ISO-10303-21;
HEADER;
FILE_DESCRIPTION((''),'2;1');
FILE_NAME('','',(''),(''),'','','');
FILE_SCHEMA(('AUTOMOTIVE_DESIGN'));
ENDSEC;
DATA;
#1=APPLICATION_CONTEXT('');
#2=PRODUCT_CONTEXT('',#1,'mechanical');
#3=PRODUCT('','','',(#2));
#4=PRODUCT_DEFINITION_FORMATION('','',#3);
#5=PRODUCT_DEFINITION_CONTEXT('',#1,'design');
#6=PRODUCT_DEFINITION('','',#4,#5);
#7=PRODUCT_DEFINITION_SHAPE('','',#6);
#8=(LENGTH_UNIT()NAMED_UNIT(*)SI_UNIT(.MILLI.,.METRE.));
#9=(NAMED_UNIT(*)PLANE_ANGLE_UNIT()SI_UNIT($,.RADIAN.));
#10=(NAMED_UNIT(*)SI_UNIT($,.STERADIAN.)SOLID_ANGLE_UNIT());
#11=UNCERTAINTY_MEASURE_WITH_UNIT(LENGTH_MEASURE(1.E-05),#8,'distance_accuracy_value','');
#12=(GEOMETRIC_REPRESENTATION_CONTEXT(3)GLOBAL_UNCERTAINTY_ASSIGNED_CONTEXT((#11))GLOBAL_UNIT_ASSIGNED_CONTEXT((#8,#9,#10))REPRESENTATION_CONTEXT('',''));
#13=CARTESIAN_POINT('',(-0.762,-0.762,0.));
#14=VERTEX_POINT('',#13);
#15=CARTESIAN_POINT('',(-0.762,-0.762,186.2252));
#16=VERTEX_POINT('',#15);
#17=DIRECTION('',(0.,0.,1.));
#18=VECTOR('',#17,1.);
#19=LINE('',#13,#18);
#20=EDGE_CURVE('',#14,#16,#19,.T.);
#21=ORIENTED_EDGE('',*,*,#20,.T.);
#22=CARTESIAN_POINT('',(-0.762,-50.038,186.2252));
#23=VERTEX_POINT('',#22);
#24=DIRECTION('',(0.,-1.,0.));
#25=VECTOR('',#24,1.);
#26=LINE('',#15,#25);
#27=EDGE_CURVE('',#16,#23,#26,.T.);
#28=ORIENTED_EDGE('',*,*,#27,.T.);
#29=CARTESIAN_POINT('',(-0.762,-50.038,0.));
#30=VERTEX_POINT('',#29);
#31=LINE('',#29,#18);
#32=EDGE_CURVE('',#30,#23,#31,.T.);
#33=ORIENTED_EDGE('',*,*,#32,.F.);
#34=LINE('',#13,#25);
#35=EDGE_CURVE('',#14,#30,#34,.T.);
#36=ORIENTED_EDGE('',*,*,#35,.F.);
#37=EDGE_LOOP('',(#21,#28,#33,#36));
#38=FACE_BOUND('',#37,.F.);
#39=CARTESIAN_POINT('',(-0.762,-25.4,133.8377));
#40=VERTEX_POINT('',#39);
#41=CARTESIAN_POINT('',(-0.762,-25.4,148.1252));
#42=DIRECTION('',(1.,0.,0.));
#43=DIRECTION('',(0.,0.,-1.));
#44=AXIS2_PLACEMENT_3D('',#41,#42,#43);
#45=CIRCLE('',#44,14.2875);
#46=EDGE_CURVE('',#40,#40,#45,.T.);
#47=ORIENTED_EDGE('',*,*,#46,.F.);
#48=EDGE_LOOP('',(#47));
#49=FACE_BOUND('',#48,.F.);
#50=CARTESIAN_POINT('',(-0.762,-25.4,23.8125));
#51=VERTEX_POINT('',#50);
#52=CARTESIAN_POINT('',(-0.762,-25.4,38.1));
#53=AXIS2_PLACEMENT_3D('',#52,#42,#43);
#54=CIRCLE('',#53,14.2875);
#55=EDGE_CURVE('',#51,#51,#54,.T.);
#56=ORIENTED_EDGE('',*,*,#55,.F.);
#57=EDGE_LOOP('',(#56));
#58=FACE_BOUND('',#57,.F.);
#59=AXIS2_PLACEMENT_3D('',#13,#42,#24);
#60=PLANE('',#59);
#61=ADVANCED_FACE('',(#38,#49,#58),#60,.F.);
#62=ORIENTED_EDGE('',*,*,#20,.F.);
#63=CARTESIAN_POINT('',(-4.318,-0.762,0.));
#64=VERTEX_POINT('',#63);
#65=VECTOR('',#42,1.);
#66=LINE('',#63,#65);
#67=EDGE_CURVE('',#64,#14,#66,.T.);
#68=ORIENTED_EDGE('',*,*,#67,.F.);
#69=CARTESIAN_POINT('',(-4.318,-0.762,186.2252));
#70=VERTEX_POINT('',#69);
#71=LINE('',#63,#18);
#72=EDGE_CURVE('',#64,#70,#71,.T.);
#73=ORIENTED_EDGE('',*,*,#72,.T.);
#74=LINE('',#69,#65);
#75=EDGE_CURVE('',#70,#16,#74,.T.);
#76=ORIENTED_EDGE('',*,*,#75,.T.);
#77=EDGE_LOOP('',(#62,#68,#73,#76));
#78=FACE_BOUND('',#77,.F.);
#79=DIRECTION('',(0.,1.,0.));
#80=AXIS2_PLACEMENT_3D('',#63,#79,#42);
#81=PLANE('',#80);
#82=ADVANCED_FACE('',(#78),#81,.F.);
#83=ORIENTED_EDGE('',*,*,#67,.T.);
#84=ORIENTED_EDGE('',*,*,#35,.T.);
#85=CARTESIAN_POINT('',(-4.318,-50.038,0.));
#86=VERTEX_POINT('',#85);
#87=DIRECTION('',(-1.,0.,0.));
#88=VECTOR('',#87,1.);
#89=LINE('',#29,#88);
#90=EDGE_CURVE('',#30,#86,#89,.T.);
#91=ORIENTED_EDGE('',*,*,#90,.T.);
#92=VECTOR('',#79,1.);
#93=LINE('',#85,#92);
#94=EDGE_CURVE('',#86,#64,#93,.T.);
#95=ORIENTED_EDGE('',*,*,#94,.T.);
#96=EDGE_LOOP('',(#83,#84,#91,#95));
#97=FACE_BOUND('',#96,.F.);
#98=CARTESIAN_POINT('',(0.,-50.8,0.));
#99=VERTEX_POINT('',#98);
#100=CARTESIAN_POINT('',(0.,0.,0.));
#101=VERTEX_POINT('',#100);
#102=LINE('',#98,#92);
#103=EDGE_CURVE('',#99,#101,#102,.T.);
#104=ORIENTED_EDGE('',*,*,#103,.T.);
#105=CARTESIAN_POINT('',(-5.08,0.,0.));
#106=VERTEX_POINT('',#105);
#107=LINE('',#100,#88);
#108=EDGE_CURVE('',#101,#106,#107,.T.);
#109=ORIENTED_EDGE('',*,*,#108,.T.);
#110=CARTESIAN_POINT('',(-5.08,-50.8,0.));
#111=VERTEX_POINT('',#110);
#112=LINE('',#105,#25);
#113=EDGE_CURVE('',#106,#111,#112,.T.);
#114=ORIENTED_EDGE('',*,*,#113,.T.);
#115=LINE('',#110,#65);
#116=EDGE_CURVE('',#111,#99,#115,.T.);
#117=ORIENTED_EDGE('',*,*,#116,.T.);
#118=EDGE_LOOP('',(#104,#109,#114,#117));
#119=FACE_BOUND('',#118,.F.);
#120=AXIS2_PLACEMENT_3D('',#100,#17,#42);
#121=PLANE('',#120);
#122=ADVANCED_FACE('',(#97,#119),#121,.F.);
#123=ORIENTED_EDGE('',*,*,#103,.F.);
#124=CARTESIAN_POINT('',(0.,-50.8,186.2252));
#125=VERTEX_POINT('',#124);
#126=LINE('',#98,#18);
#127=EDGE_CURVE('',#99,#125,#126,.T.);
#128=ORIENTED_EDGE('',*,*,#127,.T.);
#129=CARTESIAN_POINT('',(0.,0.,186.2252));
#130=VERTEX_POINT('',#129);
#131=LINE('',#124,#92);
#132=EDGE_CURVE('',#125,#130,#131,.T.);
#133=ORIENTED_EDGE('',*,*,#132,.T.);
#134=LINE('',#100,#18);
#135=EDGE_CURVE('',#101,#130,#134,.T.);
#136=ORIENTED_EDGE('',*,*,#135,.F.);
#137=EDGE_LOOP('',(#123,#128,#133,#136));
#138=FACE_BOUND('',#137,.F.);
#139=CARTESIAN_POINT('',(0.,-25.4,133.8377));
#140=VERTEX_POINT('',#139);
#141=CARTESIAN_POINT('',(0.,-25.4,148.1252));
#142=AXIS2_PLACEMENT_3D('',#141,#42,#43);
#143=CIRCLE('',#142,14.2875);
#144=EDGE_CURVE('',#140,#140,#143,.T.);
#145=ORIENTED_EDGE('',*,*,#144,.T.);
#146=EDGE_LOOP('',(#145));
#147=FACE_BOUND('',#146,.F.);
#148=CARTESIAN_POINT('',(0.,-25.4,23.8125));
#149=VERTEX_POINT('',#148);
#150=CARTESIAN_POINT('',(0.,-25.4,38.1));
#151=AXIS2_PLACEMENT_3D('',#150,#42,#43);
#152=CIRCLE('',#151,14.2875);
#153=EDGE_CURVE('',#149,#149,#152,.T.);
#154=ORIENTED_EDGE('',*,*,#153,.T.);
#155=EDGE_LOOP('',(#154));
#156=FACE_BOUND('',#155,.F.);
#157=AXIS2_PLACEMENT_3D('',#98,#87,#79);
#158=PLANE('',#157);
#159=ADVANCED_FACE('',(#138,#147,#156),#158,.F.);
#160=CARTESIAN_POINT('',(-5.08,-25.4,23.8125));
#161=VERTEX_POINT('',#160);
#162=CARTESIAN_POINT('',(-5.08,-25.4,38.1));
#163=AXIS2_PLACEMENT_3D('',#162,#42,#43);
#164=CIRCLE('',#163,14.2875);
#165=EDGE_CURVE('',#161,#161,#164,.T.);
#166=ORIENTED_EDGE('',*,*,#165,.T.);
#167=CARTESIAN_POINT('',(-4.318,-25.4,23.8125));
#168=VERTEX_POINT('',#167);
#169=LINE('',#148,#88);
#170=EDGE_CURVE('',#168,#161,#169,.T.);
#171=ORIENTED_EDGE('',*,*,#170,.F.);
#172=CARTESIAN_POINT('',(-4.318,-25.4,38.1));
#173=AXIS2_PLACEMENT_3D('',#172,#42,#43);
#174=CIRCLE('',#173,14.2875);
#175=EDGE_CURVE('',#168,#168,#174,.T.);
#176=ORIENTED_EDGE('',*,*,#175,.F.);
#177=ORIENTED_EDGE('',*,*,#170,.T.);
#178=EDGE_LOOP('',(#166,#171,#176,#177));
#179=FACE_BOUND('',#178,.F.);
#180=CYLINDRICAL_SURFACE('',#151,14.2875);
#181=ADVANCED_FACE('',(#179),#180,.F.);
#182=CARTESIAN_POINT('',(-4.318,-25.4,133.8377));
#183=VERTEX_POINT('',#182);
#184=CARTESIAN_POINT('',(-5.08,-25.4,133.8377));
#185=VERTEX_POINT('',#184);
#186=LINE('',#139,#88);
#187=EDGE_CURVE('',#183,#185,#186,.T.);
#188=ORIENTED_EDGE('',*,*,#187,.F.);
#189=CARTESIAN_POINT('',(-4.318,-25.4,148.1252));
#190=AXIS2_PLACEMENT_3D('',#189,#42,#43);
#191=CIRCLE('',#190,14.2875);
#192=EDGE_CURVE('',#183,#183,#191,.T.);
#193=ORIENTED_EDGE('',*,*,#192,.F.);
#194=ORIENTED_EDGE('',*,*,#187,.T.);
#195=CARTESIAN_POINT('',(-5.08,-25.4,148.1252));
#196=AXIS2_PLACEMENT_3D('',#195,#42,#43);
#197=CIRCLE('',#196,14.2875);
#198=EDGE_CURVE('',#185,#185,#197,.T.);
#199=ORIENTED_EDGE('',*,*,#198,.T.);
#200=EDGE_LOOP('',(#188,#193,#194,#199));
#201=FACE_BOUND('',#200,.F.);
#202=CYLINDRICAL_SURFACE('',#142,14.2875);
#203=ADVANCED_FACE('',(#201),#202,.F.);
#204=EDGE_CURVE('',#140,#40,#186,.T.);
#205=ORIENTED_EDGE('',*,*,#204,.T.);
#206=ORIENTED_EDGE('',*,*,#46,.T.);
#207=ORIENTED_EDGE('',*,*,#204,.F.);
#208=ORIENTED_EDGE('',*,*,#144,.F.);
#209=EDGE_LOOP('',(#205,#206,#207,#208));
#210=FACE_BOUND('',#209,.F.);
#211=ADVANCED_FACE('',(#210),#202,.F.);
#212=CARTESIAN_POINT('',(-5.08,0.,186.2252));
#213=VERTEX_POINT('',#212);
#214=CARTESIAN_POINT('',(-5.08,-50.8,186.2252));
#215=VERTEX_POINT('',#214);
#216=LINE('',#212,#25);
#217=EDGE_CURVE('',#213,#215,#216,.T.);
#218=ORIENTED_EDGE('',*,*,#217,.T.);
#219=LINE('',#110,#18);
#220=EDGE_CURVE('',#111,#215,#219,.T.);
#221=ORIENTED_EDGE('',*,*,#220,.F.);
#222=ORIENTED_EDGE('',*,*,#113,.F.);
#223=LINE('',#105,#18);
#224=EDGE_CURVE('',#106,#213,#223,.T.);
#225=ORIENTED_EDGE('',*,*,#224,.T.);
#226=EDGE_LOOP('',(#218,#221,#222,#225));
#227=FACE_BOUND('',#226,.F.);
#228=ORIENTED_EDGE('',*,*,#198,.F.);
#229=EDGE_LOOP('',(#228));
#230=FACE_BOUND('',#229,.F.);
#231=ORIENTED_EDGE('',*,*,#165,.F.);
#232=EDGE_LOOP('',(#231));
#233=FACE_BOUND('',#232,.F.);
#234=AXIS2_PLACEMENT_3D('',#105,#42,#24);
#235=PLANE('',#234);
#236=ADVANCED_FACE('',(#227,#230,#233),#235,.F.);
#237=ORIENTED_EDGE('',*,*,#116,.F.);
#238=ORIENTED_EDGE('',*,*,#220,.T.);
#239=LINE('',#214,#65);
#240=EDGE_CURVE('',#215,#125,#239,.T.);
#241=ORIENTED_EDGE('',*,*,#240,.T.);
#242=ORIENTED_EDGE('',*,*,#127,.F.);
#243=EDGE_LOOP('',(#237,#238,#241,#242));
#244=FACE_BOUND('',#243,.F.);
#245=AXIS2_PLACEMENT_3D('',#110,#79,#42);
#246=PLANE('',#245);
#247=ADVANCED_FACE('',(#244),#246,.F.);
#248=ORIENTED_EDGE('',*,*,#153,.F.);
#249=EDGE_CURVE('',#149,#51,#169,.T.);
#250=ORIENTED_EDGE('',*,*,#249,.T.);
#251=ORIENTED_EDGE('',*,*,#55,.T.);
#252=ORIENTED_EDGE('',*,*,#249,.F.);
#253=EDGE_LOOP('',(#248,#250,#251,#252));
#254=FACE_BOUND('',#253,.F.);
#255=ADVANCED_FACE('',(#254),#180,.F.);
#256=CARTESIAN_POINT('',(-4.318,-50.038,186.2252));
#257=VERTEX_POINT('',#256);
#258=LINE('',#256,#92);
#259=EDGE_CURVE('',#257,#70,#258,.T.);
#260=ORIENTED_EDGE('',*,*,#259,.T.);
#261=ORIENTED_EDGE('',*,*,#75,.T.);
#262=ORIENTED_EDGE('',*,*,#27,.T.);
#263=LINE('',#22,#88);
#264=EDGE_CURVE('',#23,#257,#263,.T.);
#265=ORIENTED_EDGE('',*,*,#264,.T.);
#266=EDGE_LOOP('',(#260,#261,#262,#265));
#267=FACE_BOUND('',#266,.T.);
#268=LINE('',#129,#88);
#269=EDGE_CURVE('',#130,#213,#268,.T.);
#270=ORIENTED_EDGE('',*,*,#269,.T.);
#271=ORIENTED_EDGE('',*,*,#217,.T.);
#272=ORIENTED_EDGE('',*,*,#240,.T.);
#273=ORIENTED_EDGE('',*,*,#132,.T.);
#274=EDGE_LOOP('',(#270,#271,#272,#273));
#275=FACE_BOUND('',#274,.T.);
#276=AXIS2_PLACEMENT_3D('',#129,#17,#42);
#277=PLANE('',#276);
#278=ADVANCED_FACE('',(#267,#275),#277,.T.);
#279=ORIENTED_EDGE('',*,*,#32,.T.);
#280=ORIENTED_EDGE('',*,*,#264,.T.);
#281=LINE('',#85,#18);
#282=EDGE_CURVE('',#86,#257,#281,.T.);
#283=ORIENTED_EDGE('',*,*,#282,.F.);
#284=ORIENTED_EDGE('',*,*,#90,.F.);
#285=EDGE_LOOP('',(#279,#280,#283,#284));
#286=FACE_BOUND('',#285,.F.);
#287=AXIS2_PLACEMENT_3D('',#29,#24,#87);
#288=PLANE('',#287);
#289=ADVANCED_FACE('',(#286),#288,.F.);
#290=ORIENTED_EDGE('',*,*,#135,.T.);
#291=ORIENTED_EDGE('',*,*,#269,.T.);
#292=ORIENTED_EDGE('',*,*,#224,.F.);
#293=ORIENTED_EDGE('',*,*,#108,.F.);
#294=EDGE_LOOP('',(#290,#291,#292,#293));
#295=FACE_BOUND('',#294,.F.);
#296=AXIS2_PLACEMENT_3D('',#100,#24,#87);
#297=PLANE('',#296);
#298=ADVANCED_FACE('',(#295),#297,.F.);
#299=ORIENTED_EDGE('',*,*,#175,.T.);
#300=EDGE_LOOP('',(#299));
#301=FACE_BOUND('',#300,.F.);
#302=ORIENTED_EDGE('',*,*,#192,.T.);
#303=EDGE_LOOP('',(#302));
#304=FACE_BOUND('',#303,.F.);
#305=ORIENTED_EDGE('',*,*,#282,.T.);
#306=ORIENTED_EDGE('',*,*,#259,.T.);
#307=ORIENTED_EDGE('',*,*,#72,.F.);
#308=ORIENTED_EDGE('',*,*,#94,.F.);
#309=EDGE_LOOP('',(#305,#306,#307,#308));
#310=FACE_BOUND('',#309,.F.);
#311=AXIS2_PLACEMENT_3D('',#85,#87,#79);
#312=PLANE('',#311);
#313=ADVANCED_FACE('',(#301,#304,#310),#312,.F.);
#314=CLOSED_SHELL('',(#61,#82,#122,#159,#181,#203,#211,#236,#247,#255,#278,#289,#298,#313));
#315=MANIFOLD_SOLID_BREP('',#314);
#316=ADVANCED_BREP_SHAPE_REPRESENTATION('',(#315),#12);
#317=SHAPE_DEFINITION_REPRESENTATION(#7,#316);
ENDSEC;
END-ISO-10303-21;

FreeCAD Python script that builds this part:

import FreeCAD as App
import Part
import Sketcher
from FreeCAD import Vector
Q = App.Units.Quantity

doc = App.newDocument("Part")
body = doc.addObject("PartDesign::Body", "Body")

# Sketch on XY plane
sketch1 = doc.addObject("Sketcher::SketchObject", "Sketch")
body.addObject(sketch1)
sketch1.AttachmentSupport = (doc.XY_Plane, [""])
sketch1.MapMode = "FlatFace"
sketch1.addGeometry([
    Part.LineSegment(Vector(0, -50.8, 0), Vector(0, 0, 0)),  # 0
    Part.LineSegment(Vector(0, 0, 0), Vector(-5.08, 0, 0)),  # 1
    Part.LineSegment(Vector(-5.08, 0, 0), Vector(-5.08, -50.8, 0)),  # 2
    Part.LineSegment(Vector(-5.08, -50.8, 0), Vector(0, -50.8, 0)),  # 3
    Part.LineSegment(Vector(-4.318, -50.038, 0), Vector(-4.318, -0.762, 0)),  # 4
    Part.LineSegment(Vector(-4.318, -0.762, 0), Vector(-0.762, -0.762, 0)),  # 5
    Part.LineSegment(Vector(-0.762, -0.762, 0), Vector(-0.762, -50.038, 0)),  # 6
    Part.LineSegment(Vector(-0.762, -50.038, 0), Vector(-4.318, -50.038, 0)),  # 7
], False)
sketch1.addConstraint([
    Sketcher.Constraint("Coincident", 0, 2, 1, 1),
    Sketcher.Constraint("Coincident", 1, 2, 2, 1),
    Sketcher.Constraint("Coincident", 2, 2, 3, 1),
    Sketcher.Constraint("Coincident", 3, 2, 0, 1),
    Sketcher.Constraint("Coincident", 4, 2, 5, 1),
    Sketcher.Constraint("Coincident", 5, 2, 6, 1),
    Sketcher.Constraint("Coincident", 6, 2, 7, 1),
    Sketcher.Constraint("Coincident", 7, 2, 4, 1),
    Sketcher.Constraint("Vertical", 0),
    Sketcher.Constraint("Horizontal", 1),
    Sketcher.Constraint("Vertical", 2),
    Sketcher.Constraint("Horizontal", 3),
    Sketcher.Constraint("Vertical", 4),
    Sketcher.Constraint("Horizontal", 5),
    Sketcher.Constraint("Vertical", 6),
    Sketcher.Constraint("Horizontal", 7),
    Sketcher.Constraint("Coincident", 0, 2, -1, 1),
    Sketcher.Constraint("DistanceY", 0, 1, 0, 2, Q("2 in")),
    Sketcher.Constraint("DistanceX", 1, 2, 1, 1, Q("0.2 in")),
    Sketcher.Constraint("DistanceY", 4, 2, -1, 1, Q("0.03 in")),
    Sketcher.Constraint("DistanceX", 5, 2, -1, 1, Q("0.03 in")),
    Sketcher.Constraint("DistanceX", 1, 2, 4, 2, Q("0.03 in")),
    Sketcher.Constraint("DistanceY", 3, 2, 6, 2, Q("0.03 in")),
])
pad1 = doc.addObject("PartDesign::Pad", "Pad")
body.addObject(pad1)
pad1.Profile = sketch1
pad1.Length = Q("7.3317008 in")

# Sketch on YZ plane
sketch2 = doc.addObject("Sketcher::SketchObject", "Sketch001")
body.addObject(sketch2)
sketch2.AttachmentSupport = (doc.YZ_Plane, [""])
sketch2.MapMode = "FlatFace"
sketch2.addGeometry([
    Part.Circle(Vector(-25.4, 148.1252, 0), Vector(0, 0, 1), 14.2875),
    Part.Circle(Vector(-25.4, 38.1, 0), Vector(0, 0, 1), 14.2875),
], False)
sketch2.addConstraint([
    Sketcher.Constraint("Equal", 0, 1),
    Sketcher.Constraint("Vertical", 0, 3, 1, 3),
    Sketcher.Constraint("Diameter", 0, Q("1.125 in")),
    Sketcher.Constraint("DistanceX", 0, 3, -1, 1, Q("1 in")),
    Sketcher.Constraint("DistanceY", -1, 1, 1, 3, Q("1.5 in")),
    Sketcher.Constraint("DistanceY", 1, 3, 0, 3, Q("4.3317 in")),
])
pocket1 = doc.addObject("PartDesign::Pocket", "Pocket")
body.addObject(pocket1)
pocket1.Profile = sketch2
pocket1.Length = Q("7.8 in")

doc.recompute()
